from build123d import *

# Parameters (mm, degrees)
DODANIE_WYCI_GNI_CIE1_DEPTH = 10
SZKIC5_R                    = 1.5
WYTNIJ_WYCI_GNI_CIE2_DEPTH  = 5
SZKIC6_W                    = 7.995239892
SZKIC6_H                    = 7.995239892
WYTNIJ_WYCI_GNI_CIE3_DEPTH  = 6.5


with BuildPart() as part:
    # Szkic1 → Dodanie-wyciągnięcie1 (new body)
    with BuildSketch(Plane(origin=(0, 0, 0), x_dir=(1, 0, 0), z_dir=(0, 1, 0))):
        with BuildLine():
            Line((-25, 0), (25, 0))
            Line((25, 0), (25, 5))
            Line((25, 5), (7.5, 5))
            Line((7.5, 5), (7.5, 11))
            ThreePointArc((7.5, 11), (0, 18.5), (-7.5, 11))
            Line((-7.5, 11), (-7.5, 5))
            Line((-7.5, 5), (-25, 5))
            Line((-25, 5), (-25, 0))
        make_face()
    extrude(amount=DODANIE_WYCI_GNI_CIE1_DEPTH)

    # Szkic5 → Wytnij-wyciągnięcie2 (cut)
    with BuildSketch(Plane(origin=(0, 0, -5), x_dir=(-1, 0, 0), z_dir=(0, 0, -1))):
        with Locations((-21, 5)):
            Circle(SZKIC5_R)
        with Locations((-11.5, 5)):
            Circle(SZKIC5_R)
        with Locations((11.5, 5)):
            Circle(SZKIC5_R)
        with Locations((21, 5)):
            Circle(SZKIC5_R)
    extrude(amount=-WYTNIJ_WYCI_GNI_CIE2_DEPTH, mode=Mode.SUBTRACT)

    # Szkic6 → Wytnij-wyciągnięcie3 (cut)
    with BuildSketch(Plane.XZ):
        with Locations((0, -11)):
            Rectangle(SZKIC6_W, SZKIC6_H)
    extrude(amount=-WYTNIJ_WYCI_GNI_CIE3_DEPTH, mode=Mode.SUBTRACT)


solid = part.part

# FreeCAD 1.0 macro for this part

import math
import FreeCAD as App
import Part
import Sketcher
Q = App.Units.Quantity


def add_polygon(sketch, points):
    """Adds a closed chain of lines whose ends are joined by coincident constraints."""
    first, n = sketch.GeometryCount, len(points)
    for a, b in zip(points, points[1:] + points[:1]):
        sketch.addGeometry(Part.LineSegment(App.Vector(*a, 0), App.Vector(*b, 0)), False)
    for i in range(n):
        sketch.addConstraint(Sketcher.Constraint("Coincident", first + i, 2, first + (i + 1) % n, 1))

doc = App.newDocument("Part")
body = doc.addObject("PartDesign::Body", "Body")

# Sketch on XZ plane
sketch1 = body.newObject("Sketcher::SketchObject", "Sketch")
sketch1.AttachmentSupport = (doc.getObject("XZ_Plane"), [""])
sketch1.MapMode = "FlatFace"
sketch1.addGeometry([
    Part.LineSegment(App.Vector(-25, 0, 0), App.Vector(25, 0, 0)),  # 0
    Part.LineSegment(App.Vector(25, 0, 0), App.Vector(25, -5, 0)),  # 1
    Part.LineSegment(App.Vector(25, -5, 0), App.Vector(8, -5, 0)),  # 2
    Part.LineSegment(App.Vector(8, -5, 0), App.Vector(8, -11, 0)),  # 3
    Part.ArcOfCircle(Part.Circle(App.Vector(0, -11, 0), App.Vector(0, 0, 1), 8), math.radians(180), math.radians(360)),  # 4
    Part.LineSegment(App.Vector(-8, -11, 0), App.Vector(-8, -5, 0)),  # 5
    Part.LineSegment(App.Vector(-8, -5, 0), App.Vector(-25, -5, 0)),  # 6
    Part.LineSegment(App.Vector(-25, -5, 0), App.Vector(-25, 0, 0)),  # 7
], False)
sketch1.addConstraint([
    Sketcher.Constraint("Coincident", 0, 2, 1, 1),
    Sketcher.Constraint("Coincident", 1, 2, 2, 1),
    Sketcher.Constraint("Coincident", 2, 2, 3, 1),
    Sketcher.Constraint("Tangent", 3, 2, 4, 2),
    Sketcher.Constraint("Tangent", 4, 1, 5, 1),
    Sketcher.Constraint("Coincident", 5, 2, 6, 1),
    Sketcher.Constraint("Coincident", 6, 2, 7, 1),
    Sketcher.Constraint("Coincident", 7, 2, 0, 1),
    Sketcher.Constraint("Horizontal", 0),
    Sketcher.Constraint("Vertical", 1),
    Sketcher.Constraint("Horizontal", 2),
    Sketcher.Constraint("Vertical", 3),
    Sketcher.Constraint("Vertical", 5),
    Sketcher.Constraint("Horizontal", 6),
    Sketcher.Constraint("Vertical", 7),
    Sketcher.Constraint("Symmetric", 0, 2, 7, 2, -1, 1),
    Sketcher.Constraint("Symmetric", 2, 2, 5, 2, -2),
    Sketcher.Constraint("Radius", 4, Q("7.5 mm")),
    Sketcher.Constraint("DistanceX", 0, 1, 0, 2, Q("50 mm")),
    Sketcher.Constraint("DistanceY", 1, 2, 1, 1, Q("5 mm")),
    Sketcher.Constraint("DistanceY", 3, 2, 3, 1, Q("6 mm")),
])
pad1 = body.newObject("PartDesign::Pad", "Pad")
pad1.Profile = sketch1
pad1.Length = 10
pad1.Reversed = True

# Sketch on XY plane
sketch2 = body.newObject("Sketcher::SketchObject", "Sketch001")
sketch2.AttachmentSupport = (doc.getObject("XY_Plane"), [""])
sketch2.MapMode = "FlatFace"
sketch2.AttachmentOffset = App.Placement(App.Vector(0, 0, -5), App.Rotation())
sketch2.addGeometry([
    Part.Circle(App.Vector(21, 5, 0), App.Vector(0, 0, 1), 1.5),
    Part.Circle(App.Vector(11.5, 5, 0), App.Vector(0, 0, 1), 1.5),
    Part.Circle(App.Vector(-11.5, 5, 0), App.Vector(0, 0, 1), 1.5),
    Part.Circle(App.Vector(-21, 5, 0), App.Vector(0, 0, 1), 1.5),
], False)
sketch2.addConstraint([
    Sketcher.Constraint("Equal", 0, 1),
    Sketcher.Constraint("Equal", 1, 2),
    Sketcher.Constraint("Equal", 2, 3),
    Sketcher.Constraint("Symmetric", 1, 3, 2, 3, -2),
    Sketcher.Constraint("Symmetric", 0, 3, 3, 3, -2),
    Sketcher.Constraint("Horizontal", 0, 3, 1, 3),
    Sketcher.Constraint("Diameter", 0, Q("3 mm")),
    Sketcher.Constraint("DistanceX", -1, 1, 0, 3, Q("21 mm")),
    Sketcher.Constraint("DistanceY", -1, 1, 0, 3, Q("5 mm")),
    Sketcher.Constraint("DistanceX", 2, 3, 1, 3, Q("23 mm")),
])
pocket1 = body.newObject("PartDesign::Pocket", "Pocket")
pocket1.Profile = sketch2
pocket1.Length = 5
pocket1.Reversed = True

# Sketch on XZ plane
sketch3 = body.newObject("Sketcher::SketchObject", "Sketch002")
sketch3.AttachmentSupport = (doc.getObject("XZ_Plane"), [""])
sketch3.MapMode = "FlatFace"
add_polygon(sketch3, [(-4, -7), (-4, -15), (4, -15), (4, -7)])  # lines 0-3
sketch3.addConstraint([
    Sketcher.Constraint("Vertical", 0),
    Sketcher.Constraint("Horizontal", 1),
    Sketcher.Constraint("Vertical", 2),
    Sketcher.Constraint("Horizontal", 3),
    Sketcher.Constraint("Equal", 3, 0),
    Sketcher.Constraint("DistanceX", 1, 1, 1, 2, Q("7.99524 mm")),
    Sketcher.Constraint("DistanceX", 0, 2, -1, 1, Q("3.99762 mm")),
    Sketcher.Constraint("DistanceY", 0, 2, -1, 1, Q("14.99762 mm")),
])
pocket2 = body.newObject("PartDesign::Pocket", "Pocket001")
pocket2.Profile = sketch3
pocket2.Length = 6.5

doc.recompute()
